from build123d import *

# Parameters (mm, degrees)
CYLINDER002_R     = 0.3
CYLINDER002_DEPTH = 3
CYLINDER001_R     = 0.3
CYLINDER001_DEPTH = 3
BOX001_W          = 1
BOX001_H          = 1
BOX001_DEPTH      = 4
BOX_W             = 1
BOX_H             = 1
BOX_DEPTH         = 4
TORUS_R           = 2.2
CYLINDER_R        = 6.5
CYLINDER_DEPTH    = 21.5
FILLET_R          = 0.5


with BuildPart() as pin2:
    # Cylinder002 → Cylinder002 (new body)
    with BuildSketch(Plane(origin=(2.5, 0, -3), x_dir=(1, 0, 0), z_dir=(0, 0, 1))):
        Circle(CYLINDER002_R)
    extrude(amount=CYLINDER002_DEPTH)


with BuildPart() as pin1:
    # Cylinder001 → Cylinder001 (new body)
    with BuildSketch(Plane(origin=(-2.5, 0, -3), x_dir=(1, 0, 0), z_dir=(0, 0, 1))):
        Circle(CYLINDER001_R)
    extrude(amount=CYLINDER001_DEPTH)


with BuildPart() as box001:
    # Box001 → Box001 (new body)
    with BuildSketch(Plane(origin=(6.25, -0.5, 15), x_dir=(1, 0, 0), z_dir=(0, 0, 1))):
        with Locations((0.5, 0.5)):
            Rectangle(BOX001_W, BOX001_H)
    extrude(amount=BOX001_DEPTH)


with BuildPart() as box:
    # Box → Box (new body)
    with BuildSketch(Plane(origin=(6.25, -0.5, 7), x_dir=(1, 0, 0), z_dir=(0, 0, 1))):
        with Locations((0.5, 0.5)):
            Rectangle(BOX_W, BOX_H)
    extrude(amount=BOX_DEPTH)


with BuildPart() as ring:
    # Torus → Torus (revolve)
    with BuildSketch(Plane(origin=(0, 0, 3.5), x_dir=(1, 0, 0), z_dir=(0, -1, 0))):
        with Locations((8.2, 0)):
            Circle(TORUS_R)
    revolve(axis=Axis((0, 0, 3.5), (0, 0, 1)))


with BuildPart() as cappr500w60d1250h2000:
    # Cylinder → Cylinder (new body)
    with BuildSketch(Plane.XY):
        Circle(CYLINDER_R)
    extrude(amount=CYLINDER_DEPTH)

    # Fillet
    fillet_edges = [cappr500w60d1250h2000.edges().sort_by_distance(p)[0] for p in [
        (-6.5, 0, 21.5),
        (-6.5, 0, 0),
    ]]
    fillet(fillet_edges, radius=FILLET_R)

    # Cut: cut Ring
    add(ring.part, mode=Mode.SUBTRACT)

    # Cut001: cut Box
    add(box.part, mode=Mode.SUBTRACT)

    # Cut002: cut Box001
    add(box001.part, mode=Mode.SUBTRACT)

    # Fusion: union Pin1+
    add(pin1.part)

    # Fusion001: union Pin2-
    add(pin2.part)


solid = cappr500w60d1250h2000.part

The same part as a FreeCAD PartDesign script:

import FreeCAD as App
import Part
import Sketcher

V = App.Vector
Q = App.Units.Quantity


def edges_at(feature, points):
    """Names of the edges that pass closest to the given points."""
    edges = feature.Shape.Edges
    near = lambda p: min(range(len(edges)), key=lambda i: edges[i].distToShape(Part.Vertex(*p))[0])
    return sorted({f"Edge{near(p) + 1}" for p in points})

doc = App.newDocument("Part")
body = doc.addObject("PartDesign::Body", "Body")

sketch1 = doc.addObject("Sketcher::SketchObject", "Sketch")
body.addObject(sketch1)
sketch1.AttachmentSupport = (doc.XY_Plane, [""])
sketch1.MapMode = "FlatFace"
sketch1.AttachmentOffset = App.Placement(V(0, 0, -3), App.Rotation())
sketch1.addGeometry(Part.Circle(V(2.5, 0, 0), V(0, 0, 1), 0.3), False)
sketch1.addConstraint(Sketcher.Constraint("PointOnObject", 0, 3, -1))
sketch1.addConstraint(Sketcher.Constraint("Diameter", 0, Q("0.6 mm")))
sketch1.addConstraint(Sketcher.Constraint("DistanceX", -1, 1, 0, 3, Q("2.5 mm")))
pad1 = doc.addObject("PartDesign::Pad", "Pad")
body.addObject(pad1)
pad1.Profile = sketch1
pad1.Length = 3
body2 = doc.addObject("PartDesign::Body", "Body001")

sketch2 = doc.addObject("Sketcher::SketchObject", "Sketch001")
body2.addObject(sketch2)
sketch2.AttachmentSupport = (doc.getObject("XY_Plane001"), [""])
sketch2.MapMode = "FlatFace"
sketch2.AttachmentOffset = App.Placement(V(0, 0, -3), App.Rotation())
sketch2.addGeometry(Part.Circle(V(-2.5, 0, 0), V(0, 0, 1), 0.3), False)
sketch2.addConstraint(Sketcher.Constraint("PointOnObject", 0, 3, -1))
sketch2.addConstraint(Sketcher.Constraint("Diameter", 0, Q("0.6 mm")))
sketch2.addConstraint(Sketcher.Constraint("DistanceX", 0, 3, -1, 1, Q("2.5 mm")))
pad2 = doc.addObject("PartDesign::Pad", "Pad001")
body2.addObject(pad2)
pad2.Profile = sketch2
pad2.Length = 3
body3 = doc.addObject("PartDesign::Body", "Body002")

sketch3 = doc.addObject("Sketcher::SketchObject", "Sketch002")
body3.addObject(sketch3)
sketch3.AttachmentSupport = (doc.getObject("XY_Plane002"), [""])
sketch3.MapMode = "FlatFace"
sketch3.AttachmentOffset = App.Placement(V(0, 0, 15), App.Rotation())
sketch3.addGeometry(Part.LineSegment(V(6.2, 0.5, 0), V(6.2, -0.5, 0)), False)
sketch3.addGeometry(Part.LineSegment(V(6.2, -0.5, 0), V(7.2, -0.5, 0)), False)
sketch3.addGeometry(Part.LineSegment(V(7.2, -0.5, 0), V(7.2, 0.5, 0)), False)
sketch3.addGeometry(Part.LineSegment(V(7.2, 0.5, 0), V(6.2, 0.5, 0)), False)
sketch3.addConstraint(Sketcher.Constraint("Coincident", 0, 2, 1, 1))
sketch3.addConstraint(Sketcher.Constraint("Coincident", 1, 2, 2, 1))
sketch3.addConstraint(Sketcher.Constraint("Coincident", 2, 2, 3, 1))
sketch3.addConstraint(Sketcher.Constraint("Coincident", 3, 2, 0, 1))
sketch3.addConstraint(Sketcher.Constraint("Vertical", 0))
sketch3.addConstraint(Sketcher.Constraint("Horizontal", 1))
sketch3.addConstraint(Sketcher.Constraint("Vertical", 2))
sketch3.addConstraint(Sketcher.Constraint("Horizontal", 3))
sketch3.addConstraint(Sketcher.Constraint("Equal", 3, 0))
sketch3.addConstraint(Sketcher.Constraint("DistanceX", 1, 1, 1, 2, Q("1 mm")))
sketch3.addConstraint(Sketcher.Constraint("DistanceY", 0, 2, -1, 1, Q("0.5 mm")))
sketch3.addConstraint(Sketcher.Constraint("DistanceX", -1, 1, 0, 2, Q("6.25 mm")))
pad3 = doc.addObject("PartDesign::Pad", "Pad002")
body3.addObject(pad3)
pad3.Profile = sketch3
pad3.Length = 4
body4 = doc.addObject("PartDesign::Body", "Body003")

sketch4 = doc.addObject("Sketcher::SketchObject", "Sketch003")
body4.addObject(sketch4)
sketch4.AttachmentSupport = (doc.getObject("XY_Plane003"), [""])
sketch4.MapMode = "FlatFace"
sketch4.AttachmentOffset = App.Placement(V(0, 0, 7), App.Rotation())
sketch4.addGeometry(Part.LineSegment(V(6.2, 0.5, 0), V(6.2, -0.5, 0)), False)
sketch4.addGeometry(Part.LineSegment(V(6.2, -0.5, 0), V(7.2, -0.5, 0)), False)
sketch4.addGeometry(Part.LineSegment(V(7.2, -0.5, 0), V(7.2, 0.5, 0)), False)
sketch4.addGeometry(Part.LineSegment(V(7.2, 0.5, 0), V(6.2, 0.5, 0)), False)
sketch4.addConstraint(Sketcher.Constraint("Coincident", 0, 2, 1, 1))
sketch4.addConstraint(Sketcher.Constraint("Coincident", 1, 2, 2, 1))
sketch4.addConstraint(Sketcher.Constraint("Coincident", 2, 2, 3, 1))
sketch4.addConstraint(Sketcher.Constraint("Coincident", 3, 2, 0, 1))
sketch4.addConstraint(Sketcher.Constraint("Vertical", 0))
sketch4.addConstraint(Sketcher.Constraint("Horizontal", 1))
sketch4.addConstraint(Sketcher.Constraint("Vertical", 2))
sketch4.addConstraint(Sketcher.Constraint("Horizontal", 3))
sketch4.addConstraint(Sketcher.Constraint("Equal", 3, 0))
sketch4.addConstraint(Sketcher.Constraint("DistanceX", 1, 1, 1, 2, Q("1 mm")))
sketch4.addConstraint(Sketcher.Constraint("DistanceY", 0, 2, -1, 1, Q("0.5 mm")))
sketch4.addConstraint(Sketcher.Constraint("DistanceX", -1, 1, 0, 2, Q("6.25 mm")))
pad4 = doc.addObject("PartDesign::Pad", "Pad003")
body4.addObject(pad4)
pad4.Profile = sketch4
pad4.Length = 4
body5 = doc.addObject("PartDesign::Body", "Body004")

sketch5 = doc.addObject("Sketcher::SketchObject", "Sketch004")
body5.addObject(sketch5)
sketch5.AttachmentSupport = (doc.getObject("XZ_Plane004"), [""])
sketch5.MapMode = "FlatFace"
sketch5.addGeometry(Part.Circle(V(8.2, 3.5, 0), V(0, 0, 1), 2.2), False)
sketch5.addConstraint(Sketcher.Constraint("Diameter", 0, Q("4.4 mm")))
sketch5.addConstraint(Sketcher.Constraint("DistanceX", -1, 1, 0, 3, Q("8.2 mm")))
sketch5.addConstraint(Sketcher.Constraint("DistanceY", -1, 1, 0, 3, Q("3.5 mm")))
revolution = doc.addObject("PartDesign::Revolution", "Revolution")
body5.addObject(revolution)
revolution.Profile = sketch5
revolution.ReferenceAxis = (sketch5, ["V_Axis"])
revolution.Angle = 360
body6 = doc.addObject("PartDesign::Body", "Body005")

sketch6 = doc.addObject("Sketcher::SketchObject", "Sketch005")
body6.addObject(sketch6)
sketch6.AttachmentSupport = (doc.getObject("XY_Plane005"), [""])
sketch6.MapMode = "FlatFace"
sketch6.addGeometry(Part.Circle(V(0, 0, 0), V(0, 0, 1), 6), False)
sketch6.addConstraint(Sketcher.Constraint("Coincident", 0, 3, -1, 1))
sketch6.addConstraint(Sketcher.Constraint("Diameter", 0, Q("13 mm")))
pad5 = doc.addObject("PartDesign::Pad", "Pad004")
body6.addObject(pad5)
pad5.Profile = sketch6
pad5.Length = 21.5
doc.recompute()

fillet = doc.addObject("PartDesign::Fillet", "Fillet")
body6.addObject(fillet)
fillet.Base = (pad5, edges_at(pad5, [(-6.5, 0, 21.5), (-6.5, 0, 0)]))
fillet.Radius = 0.5
doc.recompute()

boolean = doc.addObject("PartDesign::Boolean", "Boolean")
body6.addObject(boolean)
boolean.Type = "Cut"
boolean.addObjects([body5])
doc.recompute()

boolean2 = doc.addObject("PartDesign::Boolean", "Boolean001")
body6.addObject(boolean2)
boolean2.Type = "Cut"
boolean2.addObjects([body4])
doc.recompute()

boolean3 = doc.addObject("PartDesign::Boolean", "Boolean002")
body6.addObject(boolean3)
boolean3.Type = "Cut"
boolean3.addObjects([body3])
doc.recompute()

boolean4 = doc.addObject("PartDesign::Boolean", "Boolean003")
body6.addObject(boolean4)
boolean4.Type = "Fuse"
boolean4.addObjects([body2])
doc.recompute()

boolean5 = doc.addObject("PartDesign::Boolean", "Boolean004")
body6.addObject(boolean5)
boolean5.Type = "Fuse"
boolean5.addObjects([body])

doc.recompute()
